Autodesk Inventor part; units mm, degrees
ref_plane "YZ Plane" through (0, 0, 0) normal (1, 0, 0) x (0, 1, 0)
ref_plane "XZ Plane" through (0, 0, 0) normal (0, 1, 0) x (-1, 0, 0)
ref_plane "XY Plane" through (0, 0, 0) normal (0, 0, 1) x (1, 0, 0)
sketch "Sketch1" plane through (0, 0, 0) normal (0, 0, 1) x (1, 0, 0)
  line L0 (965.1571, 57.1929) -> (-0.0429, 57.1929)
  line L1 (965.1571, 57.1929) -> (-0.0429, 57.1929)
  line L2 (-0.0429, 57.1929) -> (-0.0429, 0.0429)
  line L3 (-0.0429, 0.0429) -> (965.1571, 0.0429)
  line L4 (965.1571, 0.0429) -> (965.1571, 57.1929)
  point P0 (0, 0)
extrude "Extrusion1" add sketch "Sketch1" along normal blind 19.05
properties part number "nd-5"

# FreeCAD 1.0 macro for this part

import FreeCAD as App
import Part
import Sketcher
Q = App.Units.Quantity

doc = App.newDocument("Part")
body = doc.addObject("PartDesign::Body", "Body")

sketch1 = body.newObject("Sketcher::SketchObject", "Sketch")
sketch1.AttachmentSupport = (doc.getObject("XY_Plane"), [""])
sketch1.MapMode = "FlatFace"
sketch1.addGeometry(Part.LineSegment(App.Vector(965, 0, 0), App.Vector(965, 57, 0)), False)
sketch1.addGeometry(Part.LineSegment(App.Vector(965, 57, 0), App.Vector(0, 57, 0)), False)
sketch1.addGeometry(Part.LineSegment(App.Vector(0, 57, 0), App.Vector(0, 0, 0)), False)
sketch1.addGeometry(Part.LineSegment(App.Vector(0, 0, 0), App.Vector(965, 0, 0)), False)
sketch1.addConstraint(Sketcher.Constraint("Coincident", 0, 2, 1, 1))
sketch1.addConstraint(Sketcher.Constraint("Coincident", 1, 2, 2, 1))
sketch1.addConstraint(Sketcher.Constraint("Coincident", 2, 2, 3, 1))
sketch1.addConstraint(Sketcher.Constraint("Coincident", 3, 2, 0, 1))
sketch1.addConstraint(Sketcher.Constraint("Vertical", 0))
sketch1.addConstraint(Sketcher.Constraint("Horizontal", 1))
sketch1.addConstraint(Sketcher.Constraint("Vertical", 2))
sketch1.addConstraint(Sketcher.Constraint("Horizontal", 3))
sketch1.addConstraint(Sketcher.Constraint("DistanceX", 1, 2, 1, 1, Q("38 in")))
sketch1.addConstraint(Sketcher.Constraint("DistanceY", 0, 1, 0, 2, Q("2.25 in")))
sketch1.addConstraint(Sketcher.Constraint("DistanceX", -1, 1, 0, 2, Q("37.9983 in")))
sketch1.addConstraint(Sketcher.Constraint("DistanceY", -1, 1, 0, 2, Q("2.2517 in")))
pad1 = body.newObject("PartDesign::Pad", "Pad")
pad1.Profile = sketch1
pad1.Length = Q("0.75 in")

doc.recompute()
